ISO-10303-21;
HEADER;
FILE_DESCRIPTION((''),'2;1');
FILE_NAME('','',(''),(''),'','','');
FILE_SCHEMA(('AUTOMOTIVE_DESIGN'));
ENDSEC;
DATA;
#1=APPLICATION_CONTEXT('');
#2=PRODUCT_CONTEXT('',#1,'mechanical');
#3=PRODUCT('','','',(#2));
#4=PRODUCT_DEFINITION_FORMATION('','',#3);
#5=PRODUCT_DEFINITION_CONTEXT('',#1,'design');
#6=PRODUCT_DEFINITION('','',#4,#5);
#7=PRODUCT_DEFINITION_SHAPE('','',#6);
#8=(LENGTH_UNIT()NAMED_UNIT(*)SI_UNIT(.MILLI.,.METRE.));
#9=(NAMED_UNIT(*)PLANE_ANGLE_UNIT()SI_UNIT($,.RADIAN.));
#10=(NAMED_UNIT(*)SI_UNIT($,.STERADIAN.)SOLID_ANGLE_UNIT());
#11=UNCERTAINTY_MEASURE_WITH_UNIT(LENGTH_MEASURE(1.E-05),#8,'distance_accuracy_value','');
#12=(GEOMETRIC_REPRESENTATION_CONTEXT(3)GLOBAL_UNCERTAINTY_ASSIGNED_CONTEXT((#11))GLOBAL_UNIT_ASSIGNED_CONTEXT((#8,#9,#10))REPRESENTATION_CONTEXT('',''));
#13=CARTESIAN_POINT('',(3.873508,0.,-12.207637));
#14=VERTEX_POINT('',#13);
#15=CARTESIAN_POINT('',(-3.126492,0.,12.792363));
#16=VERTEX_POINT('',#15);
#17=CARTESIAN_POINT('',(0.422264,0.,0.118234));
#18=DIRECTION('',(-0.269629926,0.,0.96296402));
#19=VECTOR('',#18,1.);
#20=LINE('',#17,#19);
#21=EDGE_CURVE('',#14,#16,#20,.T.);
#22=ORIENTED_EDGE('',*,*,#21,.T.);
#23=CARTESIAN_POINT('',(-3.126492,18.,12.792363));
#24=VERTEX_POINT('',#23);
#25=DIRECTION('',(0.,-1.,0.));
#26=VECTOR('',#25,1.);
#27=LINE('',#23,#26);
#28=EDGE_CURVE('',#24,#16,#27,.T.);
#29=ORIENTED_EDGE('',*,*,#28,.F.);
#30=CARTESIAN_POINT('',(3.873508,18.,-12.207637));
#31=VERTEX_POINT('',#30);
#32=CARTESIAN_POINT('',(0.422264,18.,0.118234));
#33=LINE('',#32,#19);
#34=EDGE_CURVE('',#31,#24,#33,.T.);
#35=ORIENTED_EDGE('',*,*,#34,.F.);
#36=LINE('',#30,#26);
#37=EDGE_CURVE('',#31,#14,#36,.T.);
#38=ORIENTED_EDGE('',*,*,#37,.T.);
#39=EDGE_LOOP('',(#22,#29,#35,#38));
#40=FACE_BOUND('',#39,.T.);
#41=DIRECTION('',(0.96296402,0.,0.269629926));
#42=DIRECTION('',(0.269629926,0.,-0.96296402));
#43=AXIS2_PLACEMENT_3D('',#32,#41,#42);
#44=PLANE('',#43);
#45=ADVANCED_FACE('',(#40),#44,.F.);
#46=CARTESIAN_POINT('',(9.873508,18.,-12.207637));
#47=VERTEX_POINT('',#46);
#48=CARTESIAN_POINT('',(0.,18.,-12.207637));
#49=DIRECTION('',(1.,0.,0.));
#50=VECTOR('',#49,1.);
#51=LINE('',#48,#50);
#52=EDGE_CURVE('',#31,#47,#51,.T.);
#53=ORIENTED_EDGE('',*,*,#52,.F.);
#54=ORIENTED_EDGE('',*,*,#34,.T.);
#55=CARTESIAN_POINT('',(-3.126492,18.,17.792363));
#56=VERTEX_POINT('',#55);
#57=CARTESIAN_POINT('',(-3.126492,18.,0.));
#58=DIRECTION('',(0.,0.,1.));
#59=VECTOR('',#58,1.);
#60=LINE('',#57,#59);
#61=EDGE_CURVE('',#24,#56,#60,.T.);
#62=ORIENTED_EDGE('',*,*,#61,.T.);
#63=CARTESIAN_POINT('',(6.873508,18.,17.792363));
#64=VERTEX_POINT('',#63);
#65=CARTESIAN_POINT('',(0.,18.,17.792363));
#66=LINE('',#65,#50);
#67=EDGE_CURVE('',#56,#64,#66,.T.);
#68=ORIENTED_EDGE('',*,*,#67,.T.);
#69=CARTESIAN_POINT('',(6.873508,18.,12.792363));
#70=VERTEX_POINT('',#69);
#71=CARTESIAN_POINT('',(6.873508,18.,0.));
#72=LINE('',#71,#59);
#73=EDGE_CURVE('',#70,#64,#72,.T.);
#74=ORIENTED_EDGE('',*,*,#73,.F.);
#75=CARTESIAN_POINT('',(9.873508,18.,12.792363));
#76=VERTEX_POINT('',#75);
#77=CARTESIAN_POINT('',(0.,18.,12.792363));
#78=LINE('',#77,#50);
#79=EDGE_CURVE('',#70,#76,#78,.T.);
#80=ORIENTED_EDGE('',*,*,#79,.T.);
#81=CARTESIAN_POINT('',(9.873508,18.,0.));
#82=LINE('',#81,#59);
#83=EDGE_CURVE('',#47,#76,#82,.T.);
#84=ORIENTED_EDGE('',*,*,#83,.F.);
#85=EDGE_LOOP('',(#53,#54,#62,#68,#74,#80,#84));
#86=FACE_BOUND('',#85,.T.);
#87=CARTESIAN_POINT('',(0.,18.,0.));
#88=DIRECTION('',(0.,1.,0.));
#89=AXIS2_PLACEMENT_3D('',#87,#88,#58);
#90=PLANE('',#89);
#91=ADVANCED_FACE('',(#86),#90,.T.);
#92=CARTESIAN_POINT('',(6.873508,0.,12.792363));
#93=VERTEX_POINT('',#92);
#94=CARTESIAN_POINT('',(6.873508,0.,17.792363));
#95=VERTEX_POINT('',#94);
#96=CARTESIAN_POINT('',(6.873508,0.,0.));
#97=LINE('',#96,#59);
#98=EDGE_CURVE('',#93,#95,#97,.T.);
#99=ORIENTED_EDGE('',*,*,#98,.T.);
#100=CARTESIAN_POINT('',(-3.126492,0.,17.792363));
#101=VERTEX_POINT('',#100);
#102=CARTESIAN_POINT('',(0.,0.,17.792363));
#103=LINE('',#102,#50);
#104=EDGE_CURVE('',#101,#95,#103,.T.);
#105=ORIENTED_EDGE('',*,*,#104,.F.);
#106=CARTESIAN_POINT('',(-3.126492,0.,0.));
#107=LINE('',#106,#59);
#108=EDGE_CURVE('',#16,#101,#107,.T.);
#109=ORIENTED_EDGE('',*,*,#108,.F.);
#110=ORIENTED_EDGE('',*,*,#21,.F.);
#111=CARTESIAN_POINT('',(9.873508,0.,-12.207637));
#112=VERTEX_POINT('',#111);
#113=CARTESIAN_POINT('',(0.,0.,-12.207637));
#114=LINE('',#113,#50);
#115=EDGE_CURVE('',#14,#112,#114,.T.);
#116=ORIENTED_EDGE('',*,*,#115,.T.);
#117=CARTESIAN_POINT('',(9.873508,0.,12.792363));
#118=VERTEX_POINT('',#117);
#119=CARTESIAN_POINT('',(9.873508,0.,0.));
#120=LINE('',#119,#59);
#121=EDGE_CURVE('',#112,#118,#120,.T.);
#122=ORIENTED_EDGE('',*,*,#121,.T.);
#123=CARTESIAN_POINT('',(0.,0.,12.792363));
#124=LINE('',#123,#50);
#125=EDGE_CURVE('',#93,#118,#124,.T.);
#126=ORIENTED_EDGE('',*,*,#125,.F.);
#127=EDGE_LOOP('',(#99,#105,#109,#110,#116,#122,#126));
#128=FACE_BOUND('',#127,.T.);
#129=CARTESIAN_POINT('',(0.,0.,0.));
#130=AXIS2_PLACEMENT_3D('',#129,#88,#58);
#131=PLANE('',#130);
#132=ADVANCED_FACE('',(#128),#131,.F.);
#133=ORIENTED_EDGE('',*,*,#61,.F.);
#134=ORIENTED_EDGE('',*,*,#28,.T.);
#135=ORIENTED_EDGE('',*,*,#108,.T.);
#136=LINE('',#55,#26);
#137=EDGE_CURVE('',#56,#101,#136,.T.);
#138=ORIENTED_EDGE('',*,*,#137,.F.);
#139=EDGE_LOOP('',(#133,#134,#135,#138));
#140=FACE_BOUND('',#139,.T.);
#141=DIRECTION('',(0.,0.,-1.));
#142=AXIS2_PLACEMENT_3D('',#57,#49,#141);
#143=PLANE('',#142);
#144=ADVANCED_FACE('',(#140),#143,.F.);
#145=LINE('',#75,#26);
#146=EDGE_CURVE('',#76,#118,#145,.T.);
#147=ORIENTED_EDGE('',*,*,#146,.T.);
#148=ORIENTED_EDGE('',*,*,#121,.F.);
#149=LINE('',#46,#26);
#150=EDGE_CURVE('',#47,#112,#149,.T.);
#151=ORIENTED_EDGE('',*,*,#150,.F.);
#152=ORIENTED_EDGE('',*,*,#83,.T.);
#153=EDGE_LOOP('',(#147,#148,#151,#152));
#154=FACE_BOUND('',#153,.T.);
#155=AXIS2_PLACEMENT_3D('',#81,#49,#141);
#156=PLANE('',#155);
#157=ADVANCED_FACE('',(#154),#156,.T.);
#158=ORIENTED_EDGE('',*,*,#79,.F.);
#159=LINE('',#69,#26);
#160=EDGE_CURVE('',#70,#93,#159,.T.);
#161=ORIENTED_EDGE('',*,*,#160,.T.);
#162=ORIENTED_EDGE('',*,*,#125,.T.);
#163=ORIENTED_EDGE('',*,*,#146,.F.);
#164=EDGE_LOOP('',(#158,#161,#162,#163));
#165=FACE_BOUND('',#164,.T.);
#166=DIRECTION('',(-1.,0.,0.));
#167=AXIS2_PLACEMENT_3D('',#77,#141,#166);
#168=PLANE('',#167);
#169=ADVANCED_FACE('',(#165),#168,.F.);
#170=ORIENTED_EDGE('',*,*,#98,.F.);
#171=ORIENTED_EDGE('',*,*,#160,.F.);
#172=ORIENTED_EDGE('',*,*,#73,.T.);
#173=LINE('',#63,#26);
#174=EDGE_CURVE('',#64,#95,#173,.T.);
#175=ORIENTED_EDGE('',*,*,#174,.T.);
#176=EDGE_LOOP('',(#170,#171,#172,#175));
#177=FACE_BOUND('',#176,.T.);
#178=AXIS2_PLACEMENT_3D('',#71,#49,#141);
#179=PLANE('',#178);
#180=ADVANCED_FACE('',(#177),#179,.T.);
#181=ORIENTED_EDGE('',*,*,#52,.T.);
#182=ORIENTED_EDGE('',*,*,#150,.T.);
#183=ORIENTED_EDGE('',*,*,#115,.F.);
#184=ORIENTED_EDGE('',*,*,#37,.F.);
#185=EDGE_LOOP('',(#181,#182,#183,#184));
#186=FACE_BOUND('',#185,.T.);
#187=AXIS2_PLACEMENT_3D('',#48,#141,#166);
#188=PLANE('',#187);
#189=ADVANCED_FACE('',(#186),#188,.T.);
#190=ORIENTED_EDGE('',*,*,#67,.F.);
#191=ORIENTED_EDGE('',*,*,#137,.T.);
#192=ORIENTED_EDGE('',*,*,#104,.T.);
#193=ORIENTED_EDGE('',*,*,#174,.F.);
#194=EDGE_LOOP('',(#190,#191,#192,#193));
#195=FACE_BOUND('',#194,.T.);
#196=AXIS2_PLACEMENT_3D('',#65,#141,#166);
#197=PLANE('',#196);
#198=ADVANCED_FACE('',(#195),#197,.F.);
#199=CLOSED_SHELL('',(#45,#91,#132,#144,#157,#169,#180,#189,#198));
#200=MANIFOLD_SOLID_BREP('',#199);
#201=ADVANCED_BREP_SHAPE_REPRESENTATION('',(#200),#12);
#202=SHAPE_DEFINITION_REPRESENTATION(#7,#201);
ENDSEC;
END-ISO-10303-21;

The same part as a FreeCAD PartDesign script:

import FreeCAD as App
import Part
import Sketcher

V = App.Vector


def add_polygon(sketch, points):
    """Adds a closed chain of lines whose ends are joined by coincident constraints."""
    first, n = sketch.GeometryCount, len(points)
    for a, b in zip(points, points[1:] + points[:1]):
        sketch.addGeometry(Part.LineSegment(App.Vector(*a, 0), App.Vector(*b, 0)), False)
    for i in range(n):
        sketch.addConstraint(Sketcher.Constraint("Coincident", first + i, 2, first + (i + 1) % n, 1))

doc = App.newDocument("Part")
body = doc.addObject("PartDesign::Body", "Body")

sketch1 = body.newObject("Sketcher::SketchObject", "Sketch")
sketch1.AttachmentSupport = (doc.getObject("XZ_Plane"), [""])
sketch1.MapMode = "FlatFace"
add_polygon(sketch1, [(9.9, 12.8), (9.9, -12.2), (3.9, -12.2), (-3.1, 12.8), (-3.1, 17.8), (6.9, 17.8), (6.9, 12.8)])
sketch1.addConstraint([
    Sketcher.Constraint("Vertical", 0),
    Sketcher.Constraint("Horizontal", 1),
    Sketcher.Constraint("Vertical", 3),
    Sketcher.Constraint("Horizontal", 4),
    Sketcher.Constraint("Vertical", 5),
    Sketcher.Constraint("Horizontal", 6),
    Sketcher.Constraint("Horizontal", 2, 2, 5, 2),
    Sketcher.Constraint("DistanceX", 1, 2, 1, 1, 6.0),
    Sketcher.Constraint("DistanceX", 4, 1, 4, 2, 10.0),
    Sketcher.Constraint("DistanceX", 6, 1, 6, 2, 3.0),
    Sketcher.Constraint("DistanceY", 0, 2, 0, 1, 25.0),
    Sketcher.Constraint("DistanceY", 3, 1, 3, 2, 5.0),
    Sketcher.Constraint("DistanceX", -1, 1, 0, 2, 9.873508),
    Sketcher.Constraint("DistanceY", 0, 2, -1, 1, 12.207637),
])
pad1 = body.newObject("PartDesign::Pad", "Pad")
pad1.Profile = sketch1
pad1.Length = 18
pad1.Reversed = True

doc.recompute()
